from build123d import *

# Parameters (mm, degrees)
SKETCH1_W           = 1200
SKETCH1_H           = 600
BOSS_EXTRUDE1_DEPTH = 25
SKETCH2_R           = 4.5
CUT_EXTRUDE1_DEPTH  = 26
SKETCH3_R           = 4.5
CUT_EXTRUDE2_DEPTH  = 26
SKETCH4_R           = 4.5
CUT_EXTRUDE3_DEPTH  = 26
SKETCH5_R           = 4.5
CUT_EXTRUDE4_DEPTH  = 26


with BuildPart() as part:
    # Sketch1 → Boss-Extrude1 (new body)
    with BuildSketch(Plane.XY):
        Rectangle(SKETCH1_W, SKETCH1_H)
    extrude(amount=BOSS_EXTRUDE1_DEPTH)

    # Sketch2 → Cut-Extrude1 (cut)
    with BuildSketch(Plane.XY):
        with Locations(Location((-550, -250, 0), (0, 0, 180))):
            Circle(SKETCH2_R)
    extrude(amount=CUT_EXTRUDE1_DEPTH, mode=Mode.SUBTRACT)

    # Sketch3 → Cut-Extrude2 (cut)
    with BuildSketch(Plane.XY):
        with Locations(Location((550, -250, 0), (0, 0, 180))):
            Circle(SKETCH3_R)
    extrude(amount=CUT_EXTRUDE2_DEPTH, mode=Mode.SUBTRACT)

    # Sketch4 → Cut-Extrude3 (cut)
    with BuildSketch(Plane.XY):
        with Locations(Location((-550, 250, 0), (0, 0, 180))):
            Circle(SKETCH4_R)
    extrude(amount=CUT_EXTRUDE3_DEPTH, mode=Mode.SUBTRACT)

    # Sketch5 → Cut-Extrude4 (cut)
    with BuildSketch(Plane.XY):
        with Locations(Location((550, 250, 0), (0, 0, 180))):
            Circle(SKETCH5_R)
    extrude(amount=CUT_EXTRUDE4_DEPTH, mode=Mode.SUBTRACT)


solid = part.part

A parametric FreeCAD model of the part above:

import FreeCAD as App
import Part
import Sketcher
from FreeCAD import Vector
Q = App.Units.Quantity

doc = App.newDocument("Part")
body = doc.addObject("PartDesign::Body", "Body")

# Sketch on XY plane
sketch1 = body.newObject("Sketcher::SketchObject", "Sketch")
sketch1.AttachmentSupport = (doc.getObject("XY_Plane"), [""])
sketch1.MapMode = "FlatFace"
sketch1.addGeometry(Part.LineSegment(Vector(-600, 300, 0), Vector(-600, -300, 0)), False)
sketch1.addGeometry(Part.LineSegment(Vector(-600, -300, 0), Vector(600, -300, 0)), False)
sketch1.addGeometry(Part.LineSegment(Vector(600, -300, 0), Vector(600, 300, 0)), False)
sketch1.addGeometry(Part.LineSegment(Vector(600, 300, 0), Vector(-600, 300, 0)), False)
sketch1.addConstraint(Sketcher.Constraint("Coincident", 0, 2, 1, 1))
sketch1.addConstraint(Sketcher.Constraint("Coincident", 1, 2, 2, 1))
sketch1.addConstraint(Sketcher.Constraint("Coincident", 2, 2, 3, 1))
sketch1.addConstraint(Sketcher.Constraint("Coincident", 3, 2, 0, 1))
sketch1.addConstraint(Sketcher.Constraint("Vertical", 0))
sketch1.addConstraint(Sketcher.Constraint("Horizontal", 1))
sketch1.addConstraint(Sketcher.Constraint("Vertical", 2))
sketch1.addConstraint(Sketcher.Constraint("Horizontal", 3))
sketch1.addConstraint(Sketcher.Constraint("Symmetric", 0, 2, 2, 2, -1, 1))
sketch1.addConstraint(Sketcher.Constraint("DistanceX", 1, 1, 1, 2, Q("1200 mm")))
sketch1.addConstraint(Sketcher.Constraint("DistanceY", 0, 2, 0, 1, Q("600 mm")))
pad1 = body.newObject("PartDesign::Pad", "Pad")
pad1.Profile = sketch1
pad1.Length = 25

# Sketch on XY plane
sketch2 = body.newObject("Sketcher::SketchObject", "Sketch001")
sketch2.AttachmentSupport = (doc.getObject("XY_Plane"), [""])
sketch2.MapMode = "FlatFace"
sketch2.addGeometry(Part.Circle(Vector(-550, -250, 0), Vector(0, 0, 1), 4.5), False)
sketch2.addConstraint(Sketcher.Constraint("Diameter", 0, Q("9 mm")))
sketch2.addConstraint(Sketcher.Constraint("DistanceX", 0, 3, -1, 1, Q("550 mm")))
sketch2.addConstraint(Sketcher.Constraint("DistanceY", 0, 3, -1, 1, Q("250 mm")))
pocket1 = body.newObject("PartDesign::Pocket", "Pocket")
pocket1.Profile = sketch2
pocket1.Length = 26
pocket1.Reversed = True

# Sketch on XY plane
sketch3 = body.newObject("Sketcher::SketchObject", "Sketch002")
sketch3.AttachmentSupport = (doc.getObject("XY_Plane"), [""])
sketch3.MapMode = "FlatFace"
sketch3.addGeometry(Part.Circle(Vector(550, -250, 0), Vector(0, 0, 1), 4.5), False)
sketch3.addConstraint(Sketcher.Constraint("Diameter", 0, Q("9 mm")))
sketch3.addConstraint(Sketcher.Constraint("DistanceX", -1, 1, 0, 3, Q("550 mm")))
sketch3.addConstraint(Sketcher.Constraint("DistanceY", 0, 3, -1, 1, Q("250 mm")))
pocket2 = body.newObject("PartDesign::Pocket", "Pocket001")
pocket2.Profile = sketch3
pocket2.Length = 26
pocket2.Reversed = True

# Sketch on XY plane
sketch4 = body.newObject("Sketcher::SketchObject", "Sketch003")
sketch4.AttachmentSupport = (doc.getObject("XY_Plane"), [""])
sketch4.MapMode = "FlatFace"
sketch4.addGeometry(Part.Circle(Vector(-550, 250, 0), Vector(0, 0, 1), 4.5), False)
sketch4.addConstraint(Sketcher.Constraint("Diameter", 0, Q("9 mm")))
sketch4.addConstraint(Sketcher.Constraint("DistanceX", 0, 3, -1, 1, Q("550 mm")))
sketch4.addConstraint(Sketcher.Constraint("DistanceY", -1, 1, 0, 3, Q("250 mm")))
pocket3 = body.newObject("PartDesign::Pocket", "Pocket002")
pocket3.Profile = sketch4
pocket3.Length = 26
pocket3.Reversed = True

# Sketch on XY plane
sketch5 = body.newObject("Sketcher::SketchObject", "Sketch004")
sketch5.AttachmentSupport = (doc.getObject("XY_Plane"), [""])
sketch5.MapMode = "FlatFace"
sketch5.addGeometry(Part.Circle(Vector(550, 250, 0), Vector(0, 0, 1), 4.5), False)
sketch5.addConstraint(Sketcher.Constraint("Diameter", 0, Q("9 mm")))
sketch5.addConstraint(Sketcher.Constraint("DistanceX", -1, 1, 0, 3, Q("550 mm")))
sketch5.addConstraint(Sketcher.Constraint("DistanceY", -1, 1, 0, 3, Q("250 mm")))
pocket4 = body.newObject("PartDesign::Pocket", "Pocket003")
pocket4.Profile = sketch5
pocket4.Length = 26
pocket4.Reversed = True

doc.recompute()
